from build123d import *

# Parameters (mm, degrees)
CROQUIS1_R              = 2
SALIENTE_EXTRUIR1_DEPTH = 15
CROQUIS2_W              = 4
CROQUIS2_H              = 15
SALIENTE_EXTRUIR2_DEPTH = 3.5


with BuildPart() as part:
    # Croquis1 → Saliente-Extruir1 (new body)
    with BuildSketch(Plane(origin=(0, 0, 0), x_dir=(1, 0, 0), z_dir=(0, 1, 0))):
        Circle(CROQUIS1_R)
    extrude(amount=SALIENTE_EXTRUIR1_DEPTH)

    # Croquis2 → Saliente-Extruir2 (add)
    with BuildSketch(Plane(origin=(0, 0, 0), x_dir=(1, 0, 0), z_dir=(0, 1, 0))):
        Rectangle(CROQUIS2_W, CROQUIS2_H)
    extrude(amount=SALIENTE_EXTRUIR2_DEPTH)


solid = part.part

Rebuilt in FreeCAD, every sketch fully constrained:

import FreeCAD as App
import Part
import Sketcher

V = App.Vector
Q = App.Units.Quantity


def add_polygon(sketch, points):
    """Adds a closed chain of lines whose ends are joined by coincident constraints."""
    first, n = sketch.GeometryCount, len(points)
    for a, b in zip(points, points[1:] + points[:1]):
        sketch.addGeometry(Part.LineSegment(App.Vector(*a, 0), App.Vector(*b, 0)), False)
    for i in range(n):
        sketch.addConstraint(Sketcher.Constraint("Coincident", first + i, 2, first + (i + 1) % n, 1))

doc = App.newDocument("Part")
body = doc.addObject("PartDesign::Body", "Body")

# Sketch on XZ plane
sketch1 = body.newObject("Sketcher::SketchObject", "Sketch")
sketch1.AttachmentSupport = (doc.getObject("XZ_Plane"), [""])
sketch1.MapMode = "FlatFace"
sketch1.addGeometry(Part.Circle(V(0, 0, 0), V(0, 0, 1), 2), False)
sketch1.addConstraint(Sketcher.Constraint("Coincident", 0, 3, -1, 1))
sketch1.addConstraint(Sketcher.Constraint("Diameter", 0, Q("4 mm")))
pad1 = body.newObject("PartDesign::Pad", "Pad")
pad1.Profile = sketch1
pad1.Length = 15
pad1.Reversed = True

# Sketch on XZ plane
sketch2 = body.newObject("Sketcher::SketchObject", "Sketch001")
sketch2.AttachmentSupport = (doc.getObject("XZ_Plane"), [""])
sketch2.MapMode = "FlatFace"
add_polygon(sketch2, [(-2, -7.5), (-2, 7.5), (2, 7.5), (2, -7.5)])  # lines 0-3
sketch2.addConstraint(Sketcher.Constraint("Vertical", 0))
sketch2.addConstraint(Sketcher.Constraint("Horizontal", 1))
sketch2.addConstraint(Sketcher.Constraint("Vertical", 2))
sketch2.addConstraint(Sketcher.Constraint("Horizontal", 3))
sketch2.addConstraint(Sketcher.Constraint("Symmetric", 0, 2, 2, 2, -1, 1))
sketch2.addConstraint(Sketcher.Constraint("DistanceX", 1, 1, 1, 2, Q("4 mm")))
sketch2.addConstraint(Sketcher.Constraint("DistanceY", 0, 1, 0, 2, Q("15 mm")))
pad2 = body.newObject("PartDesign::Pad", "Pad001")
pad2.Profile = sketch2
pad2.Length = 3.5
pad2.Reversed = True

doc.recompute()
